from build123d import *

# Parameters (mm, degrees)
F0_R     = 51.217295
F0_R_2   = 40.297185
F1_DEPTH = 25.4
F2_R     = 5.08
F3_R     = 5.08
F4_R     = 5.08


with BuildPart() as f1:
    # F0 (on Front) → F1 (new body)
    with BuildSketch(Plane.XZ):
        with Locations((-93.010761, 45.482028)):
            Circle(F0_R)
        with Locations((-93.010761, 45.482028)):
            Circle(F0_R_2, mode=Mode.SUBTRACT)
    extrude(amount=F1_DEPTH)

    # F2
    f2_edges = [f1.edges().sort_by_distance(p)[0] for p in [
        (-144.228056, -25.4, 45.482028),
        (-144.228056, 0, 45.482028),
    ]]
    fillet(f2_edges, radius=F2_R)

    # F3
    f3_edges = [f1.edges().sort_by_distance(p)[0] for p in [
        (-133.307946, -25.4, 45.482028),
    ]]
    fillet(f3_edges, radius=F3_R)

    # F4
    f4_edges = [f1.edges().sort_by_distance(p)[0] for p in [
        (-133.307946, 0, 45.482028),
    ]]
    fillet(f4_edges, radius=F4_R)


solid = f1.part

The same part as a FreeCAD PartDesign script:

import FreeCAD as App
import Part
import Sketcher
from FreeCAD import Vector
Q = App.Units.Quantity


def edges_at(feature, points):
    """Names of the edges that pass closest to the given points."""
    edges = feature.Shape.Edges
    near = lambda p: min(range(len(edges)), key=lambda i: edges[i].distToShape(Part.Vertex(*p))[0])
    return sorted({f"Edge{near(p) + 1}" for p in points})

doc = App.newDocument("Part")
body = doc.addObject("PartDesign::Body", "Body")

# Sketch on XZ plane
sketch1 = body.newObject("Sketcher::SketchObject", "Sketch")
sketch1.AttachmentSupport = (doc.getObject("XZ_Plane"), [""])
sketch1.MapMode = "FlatFace"
sketch1.addGeometry([
    Part.Circle(Vector(-93.010761, 45.482028, 0), Vector(0, 0, 1), 51.217295),
    Part.Circle(Vector(-93.010761, 45.482028, 0), Vector(0, 0, 1), 40.297185),
], False)
sketch1.addConstraint([
    Sketcher.Constraint("Coincident", 1, 3, 0, 3),
    Sketcher.Constraint("Diameter", 0, Q("102.43459 mm")),
    Sketcher.Constraint("Diameter", 1, Q("80.59437 mm")),
    Sketcher.Constraint("DistanceX", 0, 3, -1, 1, Q("93.010761 mm")),
    Sketcher.Constraint("DistanceY", -1, 1, 0, 3, Q("45.482028 mm")),
])
pad1 = body.newObject("PartDesign::Pad", "Pad")
pad1.Profile = sketch1
pad1.Length = Q("1 in")
doc.recompute()

fillet = body.newObject("PartDesign::Fillet", "Fillet")
fillet.Base = (pad1, edges_at(pad1, [(-144.228, -25.4, 45.482), (-144.228, 0, 45.482)]))
fillet.Radius = Q("0.2 in")
doc.recompute()

fillet2 = body.newObject("PartDesign::Fillet", "Fillet001")
fillet2.Base = (fillet, edges_at(fillet, [(-133.308, -25.4, 45.482)]))
fillet2.Radius = Q("0.2 in")
doc.recompute()

fillet3 = body.newObject("PartDesign::Fillet", "Fillet002")
fillet3.Base = (fillet2, edges_at(fillet2, [(-133.308, 0, 45.482)]))
fillet3.Radius = Q("0.2 in")

doc.recompute()
